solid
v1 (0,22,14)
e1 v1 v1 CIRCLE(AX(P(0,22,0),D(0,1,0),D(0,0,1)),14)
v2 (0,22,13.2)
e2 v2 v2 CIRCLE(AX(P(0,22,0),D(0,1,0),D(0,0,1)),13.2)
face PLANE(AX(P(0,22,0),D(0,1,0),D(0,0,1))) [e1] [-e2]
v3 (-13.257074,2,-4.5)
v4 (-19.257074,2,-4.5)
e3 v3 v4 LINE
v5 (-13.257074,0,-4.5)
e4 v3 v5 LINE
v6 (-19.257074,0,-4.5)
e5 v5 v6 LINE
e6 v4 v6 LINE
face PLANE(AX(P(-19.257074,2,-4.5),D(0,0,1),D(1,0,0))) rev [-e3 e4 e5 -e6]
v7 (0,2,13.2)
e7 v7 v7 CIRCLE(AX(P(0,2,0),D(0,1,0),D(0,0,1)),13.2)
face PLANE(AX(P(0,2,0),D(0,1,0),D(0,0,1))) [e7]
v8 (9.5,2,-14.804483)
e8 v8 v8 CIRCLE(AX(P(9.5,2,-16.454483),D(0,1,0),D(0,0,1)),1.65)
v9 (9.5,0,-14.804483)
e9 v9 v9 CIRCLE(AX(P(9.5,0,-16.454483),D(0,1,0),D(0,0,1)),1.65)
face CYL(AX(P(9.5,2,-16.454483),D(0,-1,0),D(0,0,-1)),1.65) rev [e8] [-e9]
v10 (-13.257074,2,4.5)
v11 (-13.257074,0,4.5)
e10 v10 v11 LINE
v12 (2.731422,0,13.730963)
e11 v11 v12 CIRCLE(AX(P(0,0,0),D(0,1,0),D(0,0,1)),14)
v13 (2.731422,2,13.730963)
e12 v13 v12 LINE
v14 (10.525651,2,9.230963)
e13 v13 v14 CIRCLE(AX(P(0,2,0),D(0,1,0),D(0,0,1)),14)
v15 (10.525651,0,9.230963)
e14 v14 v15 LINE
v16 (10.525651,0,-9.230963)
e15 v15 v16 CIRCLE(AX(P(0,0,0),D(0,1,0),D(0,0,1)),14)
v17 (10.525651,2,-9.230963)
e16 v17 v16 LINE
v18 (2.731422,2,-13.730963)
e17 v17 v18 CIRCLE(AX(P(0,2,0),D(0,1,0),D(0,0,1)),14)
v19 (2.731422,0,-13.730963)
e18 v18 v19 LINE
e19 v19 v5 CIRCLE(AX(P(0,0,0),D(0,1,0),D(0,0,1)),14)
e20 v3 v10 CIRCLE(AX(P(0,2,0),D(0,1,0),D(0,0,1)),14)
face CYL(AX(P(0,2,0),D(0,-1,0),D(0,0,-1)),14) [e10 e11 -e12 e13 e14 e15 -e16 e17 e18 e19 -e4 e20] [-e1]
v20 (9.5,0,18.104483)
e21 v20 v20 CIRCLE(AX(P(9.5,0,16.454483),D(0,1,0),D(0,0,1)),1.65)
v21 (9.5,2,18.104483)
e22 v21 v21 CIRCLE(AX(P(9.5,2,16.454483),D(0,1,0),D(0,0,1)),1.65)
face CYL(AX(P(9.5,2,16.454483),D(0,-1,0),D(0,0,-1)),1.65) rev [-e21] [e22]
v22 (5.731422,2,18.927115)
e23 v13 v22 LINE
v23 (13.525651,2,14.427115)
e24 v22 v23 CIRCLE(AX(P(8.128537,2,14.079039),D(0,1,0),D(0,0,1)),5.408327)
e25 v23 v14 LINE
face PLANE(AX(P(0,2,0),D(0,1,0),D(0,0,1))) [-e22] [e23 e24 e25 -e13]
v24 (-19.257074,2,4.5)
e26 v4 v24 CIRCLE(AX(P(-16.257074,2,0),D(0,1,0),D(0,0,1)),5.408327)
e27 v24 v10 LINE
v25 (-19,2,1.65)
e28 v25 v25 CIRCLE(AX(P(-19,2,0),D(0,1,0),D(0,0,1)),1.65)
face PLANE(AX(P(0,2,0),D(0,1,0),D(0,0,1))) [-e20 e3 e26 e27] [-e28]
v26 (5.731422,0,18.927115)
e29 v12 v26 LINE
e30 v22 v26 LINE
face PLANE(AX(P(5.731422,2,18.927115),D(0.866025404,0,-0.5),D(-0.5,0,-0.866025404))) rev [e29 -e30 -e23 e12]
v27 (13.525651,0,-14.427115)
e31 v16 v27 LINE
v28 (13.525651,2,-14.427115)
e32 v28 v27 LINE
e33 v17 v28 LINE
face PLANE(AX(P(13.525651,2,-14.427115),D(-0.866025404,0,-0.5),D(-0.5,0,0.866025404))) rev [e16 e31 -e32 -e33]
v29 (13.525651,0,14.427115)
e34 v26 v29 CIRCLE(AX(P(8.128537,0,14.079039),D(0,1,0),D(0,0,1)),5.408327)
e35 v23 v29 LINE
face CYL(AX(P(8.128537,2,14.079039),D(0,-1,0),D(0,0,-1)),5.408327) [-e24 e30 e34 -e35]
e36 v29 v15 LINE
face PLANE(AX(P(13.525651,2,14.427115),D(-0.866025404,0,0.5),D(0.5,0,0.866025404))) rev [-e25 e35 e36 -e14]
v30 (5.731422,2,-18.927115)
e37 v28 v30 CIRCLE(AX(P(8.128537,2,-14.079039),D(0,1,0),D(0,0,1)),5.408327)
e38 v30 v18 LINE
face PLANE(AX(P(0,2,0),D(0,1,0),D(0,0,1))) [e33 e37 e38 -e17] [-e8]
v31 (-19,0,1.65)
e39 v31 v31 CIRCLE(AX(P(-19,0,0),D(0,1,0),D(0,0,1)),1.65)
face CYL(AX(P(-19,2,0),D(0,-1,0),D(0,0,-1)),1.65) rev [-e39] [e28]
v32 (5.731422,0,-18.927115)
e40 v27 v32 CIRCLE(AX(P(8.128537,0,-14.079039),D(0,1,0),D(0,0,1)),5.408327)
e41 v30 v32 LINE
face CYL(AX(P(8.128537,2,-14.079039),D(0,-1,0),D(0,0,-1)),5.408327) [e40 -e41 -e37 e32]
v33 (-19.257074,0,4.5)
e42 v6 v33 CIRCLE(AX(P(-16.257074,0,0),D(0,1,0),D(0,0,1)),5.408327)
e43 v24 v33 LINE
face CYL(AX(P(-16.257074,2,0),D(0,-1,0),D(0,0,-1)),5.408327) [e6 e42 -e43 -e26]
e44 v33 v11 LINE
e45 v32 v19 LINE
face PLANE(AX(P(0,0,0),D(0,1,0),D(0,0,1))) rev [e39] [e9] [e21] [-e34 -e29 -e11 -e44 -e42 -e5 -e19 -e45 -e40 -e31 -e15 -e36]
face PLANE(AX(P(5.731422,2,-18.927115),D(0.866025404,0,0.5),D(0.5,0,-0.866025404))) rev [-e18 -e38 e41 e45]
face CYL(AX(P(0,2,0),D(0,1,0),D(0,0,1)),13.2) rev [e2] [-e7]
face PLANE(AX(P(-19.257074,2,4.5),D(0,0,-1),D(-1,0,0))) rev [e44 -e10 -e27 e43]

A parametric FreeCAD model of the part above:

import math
import FreeCAD as App
import Part
import Sketcher
Q = App.Units.Quantity

doc = App.newDocument("Part")
body = doc.addObject("PartDesign::Body", "Body")

sketch1 = doc.addObject("Sketcher::SketchObject", "Sketch")
body.addObject(sketch1)
sketch1.AttachmentSupport = (doc.XZ_Plane, [""])
sketch1.MapMode = "FlatFace"
sketch1.addGeometry([
    Part.LineSegment(App.Vector(-19.257074, 4.5, 0), App.Vector(-13.257074, 4.5, 0)),
    Part.ArcOfCircle(Part.Circle(App.Vector(0, 0, 0), App.Vector(0, 0, 1), 14), math.radians(78.749341), math.radians(161.250659)),
    Part.LineSegment(App.Vector(2.731422, 13.730963, 0), App.Vector(5.731422, 18.927115, 0)),
    Part.ArcOfCircle(Part.Circle(App.Vector(8.128537, 14.079039, 0), App.Vector(0, 0, 1), 5.408327), math.radians(3.690068), math.radians(116.309932)),
    Part.LineSegment(App.Vector(13.525651, 14.427115, 0), App.Vector(10.525651, 9.230963, 0)),
    Part.ArcOfCircle(Part.Circle(App.Vector(0, 0, 0), App.Vector(0, 0, 1), 14), math.radians(-41.250659), math.radians(41.250659)),
    Part.LineSegment(App.Vector(10.525651, -9.230963, 0), App.Vector(13.525651, -14.427115, 0)),
    Part.ArcOfCircle(Part.Circle(App.Vector(8.128537, -14.079039, 0), App.Vector(0, 0, 1), 5.408327), math.radians(-116.309932), math.radians(-3.690068)),
    Part.LineSegment(App.Vector(5.731422, -18.927115, 0), App.Vector(2.731422, -13.730963, 0)),
    Part.ArcOfCircle(Part.Circle(App.Vector(0, 0, 0), App.Vector(0, 0, 1), 14), math.radians(-161.250659), math.radians(-78.749341)),
    Part.LineSegment(App.Vector(-13.257074, -4.5, 0), App.Vector(-19.257074, -4.5, 0)),
    Part.ArcOfCircle(Part.Circle(App.Vector(-16.257074, 0, 0), App.Vector(0, 0, 1), 5.408327), math.radians(123.690068), math.radians(236.309932)),
    Part.Circle(App.Vector(-19, 0, 0), App.Vector(0, 0, 1), 1.65),
    Part.Circle(App.Vector(9.5, 16.454483, 0), App.Vector(0, 0, 1), 1.65),
    Part.Circle(App.Vector(9.5, -16.454483, 0), App.Vector(0, 0, 1), 1.65),
], False)
sketch1.addConstraint([
    Sketcher.Constraint("Coincident", 0, 2, 1, 2),
    Sketcher.Constraint("Coincident", 1, 1, 2, 1),
    Sketcher.Constraint("Coincident", 2, 2, 3, 2),
    Sketcher.Constraint("Coincident", 3, 1, 4, 1),
    Sketcher.Constraint("Coincident", 4, 2, 5, 2),
    Sketcher.Constraint("Coincident", 5, 1, 6, 1),
    Sketcher.Constraint("Coincident", 6, 2, 7, 2),
    Sketcher.Constraint("Coincident", 7, 1, 8, 1),
    Sketcher.Constraint("Coincident", 8, 2, 9, 2),
    Sketcher.Constraint("Coincident", 9, 1, 10, 1),
    Sketcher.Constraint("Coincident", 10, 2, 11, 2),
    Sketcher.Constraint("Coincident", 11, 1, 0, 1),
    Sketcher.Constraint("Horizontal", 0),
    Sketcher.Constraint("Horizontal", 10),
    Sketcher.Constraint("Coincident", 1, 3, -1, 1),
    Sketcher.Constraint("Coincident", 5, 3, -1, 1),
    Sketcher.Constraint("Coincident", 9, 3, -1, 1),
    Sketcher.Constraint("Equal", 1, 5),
    Sketcher.Constraint("Equal", 3, 7),
    Sketcher.Constraint("Equal", 5, 9),
    Sketcher.Constraint("Equal", 7, 11),
    Sketcher.Constraint("Equal", 12, 13),
    Sketcher.Constraint("Equal", 13, 14),
    Sketcher.Constraint("Symmetric", 3, 3, 7, 3, -1),
    Sketcher.Constraint("Symmetric", 13, 3, 14, 3, -1),
    Sketcher.Constraint("Symmetric", 10, 2, 11, 1, -1),
    Sketcher.Constraint("PointOnObject", 12, 3, -1),
    Sketcher.Constraint("Parallel", 2, 4),
    Sketcher.Constraint("Parallel", 6, 8),
    Sketcher.Constraint("Vertical", 4, 2, 5, 1),
    Sketcher.Constraint("Vertical", 3, 1, 6, 2),
    Sketcher.Constraint("Vertical", 2, 2, 7, 1),
    Sketcher.Constraint("Equal", 2, 4),
    Sketcher.Constraint("Radius", 1, Q("14 mm")),
    Sketcher.Constraint("Diameter", 12, Q("3.3 mm")),
    Sketcher.Constraint("DistanceX", 0, 1, 0, 2, Q("6 mm")),
    Sketcher.Constraint("Angle", 2, Q("60 deg")),
    Sketcher.Constraint("Distance", 2, Q("6 mm")),
    Sketcher.Constraint("DistanceX", 12, 3, -1, 1, Q("19 mm")),
    Sketcher.Constraint("DistanceX", 11, 3, 0, 2, Q("3 mm")),
    Sketcher.Constraint("DistanceY", 9, 1, 0, 2, Q("9 mm")),
    Sketcher.Constraint("DistanceX", -1, 1, 13, 3, Q("9.5 mm")),
    Sketcher.Constraint("DistanceY", 3, 1, 2, 2, Q("4.5 mm")),
    Sketcher.Constraint("DistanceY", -1, 1, 3, 3, Q("14.079039 mm")),
    Sketcher.Constraint("DistanceY", 7, 3, 13, 3, Q("30.533521 mm")),
])
pad1 = doc.addObject("PartDesign::Pad", "Pad")
body.addObject(pad1)
pad1.Profile = sketch1
pad1.Length = 2
pad1.Reversed = True

sketch2 = doc.addObject("Sketcher::SketchObject", "Sketch001")
body.addObject(sketch2)
sketch2.AttachmentSupport = (doc.XZ_Plane, [""])
sketch2.MapMode = "FlatFace"
sketch2.AttachmentOffset = App.Placement(App.Vector(0, 0, -2), App.Rotation())
sketch2.addGeometry(Part.Circle(App.Vector(0, 0, 0), App.Vector(0, 0, 1), 14), False)
sketch2.addConstraint([
    Sketcher.Constraint("Coincident", 0, 3, -1, 1),
    Sketcher.Constraint("Diameter", 0, Q("28 mm")),
])
pad2 = doc.addObject("PartDesign::Pad", "Pad001")
body.addObject(pad2)
pad2.Profile = sketch2
pad2.Length = 20
pad2.Reversed = True

sketch3 = doc.addObject("Sketcher::SketchObject", "Sketch002")
body.addObject(sketch3)
sketch3.AttachmentSupport = (doc.XZ_Plane, [""])
sketch3.MapMode = "FlatFace"
sketch3.AttachmentOffset = App.Placement(App.Vector(0, 0, -22), App.Rotation())
sketch3.addGeometry(Part.Circle(App.Vector(0, 0, 0), App.Vector(0, 0, 1), 13.2), False)
sketch3.addConstraint([
    Sketcher.Constraint("Coincident", 0, 3, -1, 1),
    Sketcher.Constraint("Diameter", 0, Q("26.4 mm")),
])
pocket1 = doc.addObject("PartDesign::Pocket", "Pocket")
body.addObject(pocket1)
pocket1.Profile = sketch3
pocket1.Length = 20
pocket1.Reversed = True

doc.recompute()
